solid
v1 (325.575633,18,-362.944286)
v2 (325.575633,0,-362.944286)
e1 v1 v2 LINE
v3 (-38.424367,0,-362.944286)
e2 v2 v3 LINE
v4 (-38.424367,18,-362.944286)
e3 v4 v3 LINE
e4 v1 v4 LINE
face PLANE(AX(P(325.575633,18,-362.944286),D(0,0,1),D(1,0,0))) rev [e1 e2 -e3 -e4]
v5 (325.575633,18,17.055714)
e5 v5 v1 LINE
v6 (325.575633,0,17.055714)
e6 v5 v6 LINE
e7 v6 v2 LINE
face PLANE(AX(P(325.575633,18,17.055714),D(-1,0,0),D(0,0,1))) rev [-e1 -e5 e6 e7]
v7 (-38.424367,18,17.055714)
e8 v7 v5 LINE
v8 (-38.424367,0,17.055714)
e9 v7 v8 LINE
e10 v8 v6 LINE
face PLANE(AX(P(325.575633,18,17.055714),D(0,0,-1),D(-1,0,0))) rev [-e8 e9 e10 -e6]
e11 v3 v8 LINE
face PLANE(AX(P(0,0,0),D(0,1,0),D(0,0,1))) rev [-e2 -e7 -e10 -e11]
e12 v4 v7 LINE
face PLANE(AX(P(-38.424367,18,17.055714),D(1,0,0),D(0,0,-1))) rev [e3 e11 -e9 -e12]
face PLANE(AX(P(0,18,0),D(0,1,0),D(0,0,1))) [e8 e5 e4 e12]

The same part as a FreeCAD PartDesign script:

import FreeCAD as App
import Part
import Sketcher

V = App.Vector
Q = App.Units.Quantity

doc = App.newDocument("Part")
body = doc.addObject("PartDesign::Body", "Body")

# Sketch on XZ plane
sketch1 = body.newObject("Sketcher::SketchObject", "Sketch")
sketch1.AttachmentSupport = (doc.getObject("XZ_Plane"), [""])
sketch1.MapMode = "FlatFace"
sketch1.addGeometry([
    Part.LineSegment(V(-38, -363, 0), V(-38, 17, 0)),
    Part.LineSegment(V(-38, 17, 0), V(326, 17, 0)),
    Part.LineSegment(V(326, 17, 0), V(326, -363, 0)),
    Part.LineSegment(V(326, -363, 0), V(-38, -363, 0)),
], False)
sketch1.addConstraint([
    Sketcher.Constraint("Coincident", 0, 2, 1, 1),
    Sketcher.Constraint("Coincident", 1, 2, 2, 1),
    Sketcher.Constraint("Coincident", 2, 2, 3, 1),
    Sketcher.Constraint("Coincident", 3, 2, 0, 1),
    Sketcher.Constraint("Vertical", 0),
    Sketcher.Constraint("Horizontal", 1),
    Sketcher.Constraint("Vertical", 2),
    Sketcher.Constraint("Horizontal", 3),
    Sketcher.Constraint("DistanceX", 1, 1, 1, 2, Q("364 mm")),
    Sketcher.Constraint("DistanceY", 0, 1, 0, 2, Q("380 mm")),
    Sketcher.Constraint("DistanceX", 0, 2, -1, 1, Q("38.424367 mm")),
    Sketcher.Constraint("DistanceY", -1, 1, 0, 2, Q("17.055714 mm")),
])
pad1 = body.newObject("PartDesign::Pad", "Pad")
pad1.Profile = sketch1
pad1.Length = 18
pad1.Reversed = True

doc.recompute()
